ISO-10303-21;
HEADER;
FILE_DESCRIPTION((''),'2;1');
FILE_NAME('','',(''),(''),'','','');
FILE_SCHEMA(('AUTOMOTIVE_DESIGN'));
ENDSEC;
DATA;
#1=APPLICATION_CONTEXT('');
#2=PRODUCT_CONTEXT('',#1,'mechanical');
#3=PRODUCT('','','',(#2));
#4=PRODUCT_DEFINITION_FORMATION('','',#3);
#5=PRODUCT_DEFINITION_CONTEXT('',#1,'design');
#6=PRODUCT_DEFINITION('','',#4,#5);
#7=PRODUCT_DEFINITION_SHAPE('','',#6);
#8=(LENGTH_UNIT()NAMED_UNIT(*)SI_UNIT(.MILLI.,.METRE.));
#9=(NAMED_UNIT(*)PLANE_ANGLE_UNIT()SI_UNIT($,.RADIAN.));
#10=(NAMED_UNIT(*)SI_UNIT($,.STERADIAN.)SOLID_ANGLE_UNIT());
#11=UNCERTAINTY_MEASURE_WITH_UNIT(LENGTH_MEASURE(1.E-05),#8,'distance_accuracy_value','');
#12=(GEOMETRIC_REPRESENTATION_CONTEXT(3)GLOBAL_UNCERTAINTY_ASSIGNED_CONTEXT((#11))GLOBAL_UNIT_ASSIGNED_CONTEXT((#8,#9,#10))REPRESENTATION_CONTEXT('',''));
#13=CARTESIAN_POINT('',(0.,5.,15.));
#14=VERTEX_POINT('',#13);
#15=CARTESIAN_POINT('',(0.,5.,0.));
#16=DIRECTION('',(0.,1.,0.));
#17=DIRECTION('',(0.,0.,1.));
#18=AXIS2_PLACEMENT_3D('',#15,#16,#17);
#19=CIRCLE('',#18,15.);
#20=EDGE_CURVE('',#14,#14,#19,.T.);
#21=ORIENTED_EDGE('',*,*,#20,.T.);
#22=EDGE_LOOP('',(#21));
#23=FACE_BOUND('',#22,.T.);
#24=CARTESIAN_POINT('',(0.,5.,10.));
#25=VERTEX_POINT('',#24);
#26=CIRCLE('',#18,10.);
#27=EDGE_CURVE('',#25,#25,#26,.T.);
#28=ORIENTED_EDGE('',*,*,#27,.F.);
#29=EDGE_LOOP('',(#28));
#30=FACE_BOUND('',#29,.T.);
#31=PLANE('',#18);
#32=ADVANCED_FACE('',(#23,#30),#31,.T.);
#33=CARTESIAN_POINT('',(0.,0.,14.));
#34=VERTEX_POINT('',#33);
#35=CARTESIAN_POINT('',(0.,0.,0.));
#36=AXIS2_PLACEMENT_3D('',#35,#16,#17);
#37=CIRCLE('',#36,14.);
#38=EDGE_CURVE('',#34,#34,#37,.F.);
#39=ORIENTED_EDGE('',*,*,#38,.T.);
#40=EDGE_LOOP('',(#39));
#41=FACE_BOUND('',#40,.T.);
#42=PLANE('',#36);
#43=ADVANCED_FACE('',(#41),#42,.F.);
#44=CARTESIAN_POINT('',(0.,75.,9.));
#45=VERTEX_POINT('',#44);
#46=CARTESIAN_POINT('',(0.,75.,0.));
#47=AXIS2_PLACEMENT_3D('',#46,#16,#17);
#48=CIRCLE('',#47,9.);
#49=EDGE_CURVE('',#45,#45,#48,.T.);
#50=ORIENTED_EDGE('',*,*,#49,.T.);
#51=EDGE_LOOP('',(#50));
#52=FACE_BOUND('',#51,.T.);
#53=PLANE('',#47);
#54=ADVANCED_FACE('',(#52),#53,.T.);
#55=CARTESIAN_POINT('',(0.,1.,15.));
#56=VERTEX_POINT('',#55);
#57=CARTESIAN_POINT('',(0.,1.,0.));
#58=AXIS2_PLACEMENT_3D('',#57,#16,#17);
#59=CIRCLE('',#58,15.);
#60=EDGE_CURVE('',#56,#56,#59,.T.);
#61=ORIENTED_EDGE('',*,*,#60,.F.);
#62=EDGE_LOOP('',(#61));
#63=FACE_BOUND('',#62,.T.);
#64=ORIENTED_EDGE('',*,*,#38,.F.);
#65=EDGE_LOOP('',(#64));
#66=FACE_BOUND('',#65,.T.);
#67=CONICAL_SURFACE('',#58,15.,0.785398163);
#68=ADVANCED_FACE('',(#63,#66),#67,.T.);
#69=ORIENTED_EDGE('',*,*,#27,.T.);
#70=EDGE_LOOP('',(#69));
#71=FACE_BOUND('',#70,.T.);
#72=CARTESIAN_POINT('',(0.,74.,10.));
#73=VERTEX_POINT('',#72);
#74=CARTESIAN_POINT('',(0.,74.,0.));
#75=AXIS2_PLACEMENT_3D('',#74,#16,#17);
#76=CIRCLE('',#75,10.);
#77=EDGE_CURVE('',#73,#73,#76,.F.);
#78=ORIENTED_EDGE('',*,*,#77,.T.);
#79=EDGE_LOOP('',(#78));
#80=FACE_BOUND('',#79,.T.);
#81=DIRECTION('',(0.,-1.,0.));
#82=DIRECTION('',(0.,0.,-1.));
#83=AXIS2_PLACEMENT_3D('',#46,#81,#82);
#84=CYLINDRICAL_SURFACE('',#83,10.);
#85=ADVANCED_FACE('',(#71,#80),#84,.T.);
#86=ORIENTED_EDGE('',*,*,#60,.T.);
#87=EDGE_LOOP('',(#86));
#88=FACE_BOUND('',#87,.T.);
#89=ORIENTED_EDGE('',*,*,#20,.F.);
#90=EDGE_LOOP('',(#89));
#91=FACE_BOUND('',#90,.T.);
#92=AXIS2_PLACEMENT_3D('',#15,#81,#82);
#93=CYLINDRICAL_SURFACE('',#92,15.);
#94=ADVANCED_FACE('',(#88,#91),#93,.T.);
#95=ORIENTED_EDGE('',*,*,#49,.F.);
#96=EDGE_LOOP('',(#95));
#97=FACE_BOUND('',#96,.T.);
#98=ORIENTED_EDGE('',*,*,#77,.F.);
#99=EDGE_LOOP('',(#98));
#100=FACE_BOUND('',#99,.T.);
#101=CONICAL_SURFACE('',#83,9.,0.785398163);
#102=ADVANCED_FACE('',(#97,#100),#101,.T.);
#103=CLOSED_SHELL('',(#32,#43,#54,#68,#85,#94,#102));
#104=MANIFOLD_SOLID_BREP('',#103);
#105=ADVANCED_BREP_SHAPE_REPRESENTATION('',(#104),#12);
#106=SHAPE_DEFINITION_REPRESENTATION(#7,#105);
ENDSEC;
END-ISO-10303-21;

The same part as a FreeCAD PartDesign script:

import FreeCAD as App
import Part
import Sketcher

V = App.Vector
Q = App.Units.Quantity


def edges_at(feature, points):
    """Names of the edges that pass closest to the given points."""
    edges = feature.Shape.Edges
    near = lambda p: min(range(len(edges)), key=lambda i: edges[i].distToShape(Part.Vertex(*p))[0])
    return sorted({f"Edge{near(p) + 1}" for p in points})

doc = App.newDocument("Part")
body = doc.addObject("PartDesign::Body", "Body")

# Sketch on XZ plane
sketch1 = body.newObject("Sketcher::SketchObject", "Sketch")
sketch1.AttachmentSupport = (doc.getObject("XZ_Plane"), [""])
sketch1.MapMode = "FlatFace"
sketch1.addGeometry(Part.Circle(V(0, 0, 0), V(0, 0, 1), 15), False)
sketch1.addConstraint(Sketcher.Constraint("Coincident", 0, 3, -1, 1))
sketch1.addConstraint(Sketcher.Constraint("Diameter", 0, Q("30 mm")))
pad1 = body.newObject("PartDesign::Pad", "Pad")
pad1.Profile = sketch1
pad1.Length = 5
pad1.Reversed = True

# Sketch on XZ plane
sketch2 = body.newObject("Sketcher::SketchObject", "Sketch001")
sketch2.AttachmentSupport = (doc.getObject("XZ_Plane"), [""])
sketch2.MapMode = "FlatFace"
sketch2.AttachmentOffset = App.Placement(V(0, 0, -5), App.Rotation())
sketch2.addGeometry(Part.Circle(V(0, 0, 0), V(0, 0, 1), 10), False)
sketch2.addConstraint(Sketcher.Constraint("Coincident", 0, 3, -1, 1))
sketch2.addConstraint(Sketcher.Constraint("Diameter", 0, Q("20 mm")))
pad2 = body.newObject("PartDesign::Pad", "Pad001")
pad2.Profile = sketch2
pad2.Length = 70
pad2.Reversed = True
doc.recompute()

chamfer = body.newObject("PartDesign::Chamfer", "Chamfer")
chamfer.Base = (pad2, edges_at(pad2, [(-15, 0, 0), (-10, 75, 0)]))
chamfer.Size = 1

doc.recompute()
